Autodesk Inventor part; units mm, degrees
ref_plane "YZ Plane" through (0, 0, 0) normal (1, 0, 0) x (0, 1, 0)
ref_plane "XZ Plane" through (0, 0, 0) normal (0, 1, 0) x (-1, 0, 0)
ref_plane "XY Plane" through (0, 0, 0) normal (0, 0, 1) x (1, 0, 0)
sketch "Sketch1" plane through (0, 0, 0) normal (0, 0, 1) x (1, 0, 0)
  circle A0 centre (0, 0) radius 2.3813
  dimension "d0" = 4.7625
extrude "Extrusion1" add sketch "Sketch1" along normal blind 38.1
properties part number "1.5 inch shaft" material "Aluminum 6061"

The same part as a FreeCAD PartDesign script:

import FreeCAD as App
import Part
import Sketcher
Q = App.Units.Quantity

doc = App.newDocument("Part")
body = doc.addObject("PartDesign::Body", "Body")

sketch1 = doc.addObject("Sketcher::SketchObject", "Sketch")
body.addObject(sketch1)
sketch1.AttachmentSupport = (doc.XY_Plane, [""])
sketch1.MapMode = "FlatFace"
sketch1.addGeometry(Part.Circle(App.Vector(0, 0, 0), App.Vector(0, 0, 1), 2.3813), False)
sketch1.addConstraint(Sketcher.Constraint("Coincident", 0, 3, -1, 1))
sketch1.addConstraint(Sketcher.Constraint("Diameter", 0, Q("0.1875 in")))
pad1 = doc.addObject("PartDesign::Pad", "Pad")
body.addObject(pad1)
pad1.Profile = sketch1
pad1.Length = Q("1.5 in")

doc.recompute()
